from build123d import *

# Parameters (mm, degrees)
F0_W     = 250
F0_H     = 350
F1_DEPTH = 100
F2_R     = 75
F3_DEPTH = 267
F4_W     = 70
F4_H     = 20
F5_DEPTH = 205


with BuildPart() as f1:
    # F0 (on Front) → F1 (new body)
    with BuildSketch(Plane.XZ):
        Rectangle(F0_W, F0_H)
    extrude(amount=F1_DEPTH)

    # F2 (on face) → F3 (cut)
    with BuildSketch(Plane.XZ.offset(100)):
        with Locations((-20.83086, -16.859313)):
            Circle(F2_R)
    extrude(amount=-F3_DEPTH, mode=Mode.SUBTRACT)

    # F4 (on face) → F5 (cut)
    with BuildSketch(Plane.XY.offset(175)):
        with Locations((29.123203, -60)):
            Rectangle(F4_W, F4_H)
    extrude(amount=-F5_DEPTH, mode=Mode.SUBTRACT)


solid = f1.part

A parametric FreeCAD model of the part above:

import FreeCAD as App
import Part
import Sketcher

V = App.Vector


def add_polygon(sketch, points):
    """Adds a closed chain of lines whose ends are joined by coincident constraints."""
    first, n = sketch.GeometryCount, len(points)
    for a, b in zip(points, points[1:] + points[:1]):
        sketch.addGeometry(Part.LineSegment(App.Vector(*a, 0), App.Vector(*b, 0)), False)
    for i in range(n):
        sketch.addConstraint(Sketcher.Constraint("Coincident", first + i, 2, first + (i + 1) % n, 1))

doc = App.newDocument("Part")
body = doc.addObject("PartDesign::Body", "Body")

# Sketch on XZ plane
sketch1 = doc.addObject("Sketcher::SketchObject", "Sketch")
body.addObject(sketch1)
sketch1.AttachmentSupport = (doc.XZ_Plane, [""])
sketch1.MapMode = "FlatFace"
add_polygon(sketch1, [(-125, 175), (-125, -175), (125, -175), (125, 175)])  # lines 0-3
sketch1.addConstraint([
    Sketcher.Constraint("Vertical", 0),
    Sketcher.Constraint("Horizontal", 1),
    Sketcher.Constraint("Vertical", 2),
    Sketcher.Constraint("Horizontal", 3),
    Sketcher.Constraint("Symmetric", 0, 2, 2, 2, -1, 1),
    Sketcher.Constraint("DistanceX", 1, 1, 1, 2, 250.0),
    Sketcher.Constraint("DistanceY", 0, 2, 0, 1, 350.0),
])
pad1 = doc.addObject("PartDesign::Pad", "Pad")
body.addObject(pad1)
pad1.Profile = sketch1
pad1.Length = 100

# Sketch on XZ plane
sketch2 = doc.addObject("Sketcher::SketchObject", "Sketch001")
body.addObject(sketch2)
sketch2.AttachmentSupport = (doc.XZ_Plane, [""])
sketch2.MapMode = "FlatFace"
sketch2.AttachmentOffset = App.Placement(V(0, 0, 100), App.Rotation())
sketch2.addGeometry(Part.Circle(V(-20.83086, -16.859313, 0), V(0, 0, 1), 75), False)
sketch2.addConstraint([
    Sketcher.Constraint("Diameter", 0, 150.0),
    Sketcher.Constraint("DistanceX", 0, 3, -1, 1, 20.83086),
    Sketcher.Constraint("DistanceY", 0, 3, -1, 1, 16.859313),
])
pocket1 = doc.addObject("PartDesign::Pocket", "Pocket")
body.addObject(pocket1)
pocket1.Profile = sketch2
pocket1.Length = 267

# Sketch on XY plane
sketch3 = doc.addObject("Sketcher::SketchObject", "Sketch002")
body.addObject(sketch3)
sketch3.AttachmentSupport = (doc.XY_Plane, [""])
sketch3.MapMode = "FlatFace"
sketch3.AttachmentOffset = App.Placement(V(0, 0, 175), App.Rotation())
add_polygon(sketch3, [(-5.876797, -50), (-5.876797, -70), (64.123203, -70), (64.123203, -50)])  # lines 0-3
sketch3.addConstraint([
    Sketcher.Constraint("Vertical", 0),
    Sketcher.Constraint("Horizontal", 1),
    Sketcher.Constraint("Vertical", 2),
    Sketcher.Constraint("Horizontal", 3),
    Sketcher.Constraint("DistanceX", 1, 1, 1, 2, 70.0),
    Sketcher.Constraint("DistanceY", 0, 2, 0, 1, 20.0),
    Sketcher.Constraint("DistanceY", 0, 2, -1, 1, 70.0),
    Sketcher.Constraint("DistanceX", 0, 2, -1, 1, 5.876797),
])
pocket2 = doc.addObject("PartDesign::Pocket", "Pocket001")
body.addObject(pocket2)
pocket2.Profile = sketch3
pocket2.Length = 205

doc.recompute()
